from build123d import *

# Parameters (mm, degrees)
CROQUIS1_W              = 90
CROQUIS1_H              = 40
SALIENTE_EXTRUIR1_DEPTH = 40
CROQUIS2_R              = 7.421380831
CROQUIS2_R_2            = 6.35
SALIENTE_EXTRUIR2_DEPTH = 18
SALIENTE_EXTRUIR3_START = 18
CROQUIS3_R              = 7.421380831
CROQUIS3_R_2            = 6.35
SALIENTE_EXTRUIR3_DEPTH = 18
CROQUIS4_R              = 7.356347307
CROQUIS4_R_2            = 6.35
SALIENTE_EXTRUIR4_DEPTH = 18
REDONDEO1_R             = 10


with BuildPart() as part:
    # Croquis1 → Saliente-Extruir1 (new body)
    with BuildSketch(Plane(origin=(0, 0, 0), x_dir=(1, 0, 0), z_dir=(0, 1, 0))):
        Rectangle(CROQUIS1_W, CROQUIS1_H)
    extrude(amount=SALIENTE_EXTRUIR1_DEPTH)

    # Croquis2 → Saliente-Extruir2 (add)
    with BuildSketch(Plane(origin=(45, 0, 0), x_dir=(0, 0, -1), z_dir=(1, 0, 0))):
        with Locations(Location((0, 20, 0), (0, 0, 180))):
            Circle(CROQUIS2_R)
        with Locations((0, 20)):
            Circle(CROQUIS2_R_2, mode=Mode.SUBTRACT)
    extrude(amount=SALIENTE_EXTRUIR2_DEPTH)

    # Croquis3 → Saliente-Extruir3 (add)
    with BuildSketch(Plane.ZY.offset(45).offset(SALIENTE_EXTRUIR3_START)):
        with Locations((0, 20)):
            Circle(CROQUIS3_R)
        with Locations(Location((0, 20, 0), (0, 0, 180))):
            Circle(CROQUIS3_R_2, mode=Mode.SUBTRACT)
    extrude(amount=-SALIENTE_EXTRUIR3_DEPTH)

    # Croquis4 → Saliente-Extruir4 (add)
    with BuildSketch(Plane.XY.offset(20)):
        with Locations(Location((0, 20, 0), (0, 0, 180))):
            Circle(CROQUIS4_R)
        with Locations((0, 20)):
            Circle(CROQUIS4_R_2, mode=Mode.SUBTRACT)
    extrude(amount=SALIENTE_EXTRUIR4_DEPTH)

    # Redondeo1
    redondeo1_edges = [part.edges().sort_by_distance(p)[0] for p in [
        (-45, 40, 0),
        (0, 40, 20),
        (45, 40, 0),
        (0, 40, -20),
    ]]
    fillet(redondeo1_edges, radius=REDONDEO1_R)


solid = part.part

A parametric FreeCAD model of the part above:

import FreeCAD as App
import Part
import Sketcher
from FreeCAD import Vector


def edges_at(feature, points):
    """Names of the edges that pass closest to the given points."""
    edges = feature.Shape.Edges
    near = lambda p: min(range(len(edges)), key=lambda i: edges[i].distToShape(Part.Vertex(*p))[0])
    return sorted({f"Edge{near(p) + 1}" for p in points})


def add_polygon(sketch, points):
    """Adds a closed chain of lines whose ends are joined by coincident constraints."""
    first, n = sketch.GeometryCount, len(points)
    for a, b in zip(points, points[1:] + points[:1]):
        sketch.addGeometry(Part.LineSegment(App.Vector(*a, 0), App.Vector(*b, 0)), False)
    for i in range(n):
        sketch.addConstraint(Sketcher.Constraint("Coincident", first + i, 2, first + (i + 1) % n, 1))

doc = App.newDocument("Part")
body = doc.addObject("PartDesign::Body", "Body")

sketch1 = doc.addObject("Sketcher::SketchObject", "Sketch")
body.addObject(sketch1)
sketch1.AttachmentSupport = (doc.XZ_Plane, [""])
sketch1.MapMode = "FlatFace"
add_polygon(sketch1, [(-45, -20), (-45, 20), (45, 20), (45, -20)])
sketch1.addConstraint([
    Sketcher.Constraint("Vertical", 0),
    Sketcher.Constraint("Horizontal", 1),
    Sketcher.Constraint("Vertical", 2),
    Sketcher.Constraint("Horizontal", 3),
    Sketcher.Constraint("Symmetric", 0, 2, 2, 2, -1, 1),
    Sketcher.Constraint("DistanceX", 1, 1, 1, 2, 90.0),
    Sketcher.Constraint("DistanceY", 0, 1, 0, 2, 40.0),
])
pad1 = doc.addObject("PartDesign::Pad", "Pad")
body.addObject(pad1)
pad1.Profile = sketch1
pad1.Length = 40
pad1.Reversed = True

sketch2 = doc.addObject("Sketcher::SketchObject", "Sketch001")
body.addObject(sketch2)
sketch2.AttachmentSupport = (doc.YZ_Plane, [""])
sketch2.MapMode = "FlatFace"
sketch2.AttachmentOffset = App.Placement(Vector(0, 0, 45), App.Rotation())
sketch2.addGeometry([
    Part.Circle(Vector(20, 0, 0), Vector(0, 0, 1), 7.421381),
    Part.Circle(Vector(20, 0, 0), Vector(0, 0, 1), 6.35),
], False)
sketch2.addConstraint([
    Sketcher.Constraint("Coincident", 1, 3, 0, 3),
    Sketcher.Constraint("PointOnObject", 0, 3, -1),
    Sketcher.Constraint("Diameter", 1, 12.7),
    Sketcher.Constraint("DistanceX", -1, 1, 0, 3, 20.0),
    Sketcher.Constraint("Diameter", 0, 14.842762),
])
pad2 = doc.addObject("PartDesign::Pad", "Pad001")
body.addObject(pad2)
pad2.Profile = sketch2
pad2.Length = 18

sketch3 = doc.addObject("Sketcher::SketchObject", "Sketch002")
body.addObject(sketch3)
sketch3.AttachmentSupport = (doc.YZ_Plane, [""])
sketch3.MapMode = "FlatFace"
sketch3.AttachmentOffset = App.Placement(Vector(0, 0, -63), App.Rotation())
sketch3.addGeometry([
    Part.Circle(Vector(20, 0, 0), Vector(0, 0, 1), 7.421381),
    Part.Circle(Vector(20, 0, 0), Vector(0, 0, 1), 6.35),
], False)
sketch3.addConstraint([
    Sketcher.Constraint("Coincident", 1, 3, 0, 3),
    Sketcher.Constraint("PointOnObject", 0, 3, -1),
    Sketcher.Constraint("Diameter", 1, 12.7),
    Sketcher.Constraint("DistanceX", -1, 1, 0, 3, 20.0),
    Sketcher.Constraint("Diameter", 0, 14.842762),
])
pad3 = doc.addObject("PartDesign::Pad", "Pad002")
body.addObject(pad3)
pad3.Profile = sketch3
pad3.Length = 18

sketch4 = doc.addObject("Sketcher::SketchObject", "Sketch003")
body.addObject(sketch4)
sketch4.AttachmentSupport = (doc.XY_Plane, [""])
sketch4.MapMode = "FlatFace"
sketch4.AttachmentOffset = App.Placement(Vector(0, 0, 20), App.Rotation())
sketch4.addGeometry([
    Part.Circle(Vector(0, 20, 0), Vector(0, 0, 1), 7.356347),
    Part.Circle(Vector(0, 20, 0), Vector(0, 0, 1), 6.35),
], False)
sketch4.addConstraint([
    Sketcher.Constraint("Coincident", 1, 3, 0, 3),
    Sketcher.Constraint("PointOnObject", 0, 3, -2),
    Sketcher.Constraint("Diameter", 1, 12.7),
    Sketcher.Constraint("DistanceY", -1, 1, 0, 3, 20.0),
    Sketcher.Constraint("Diameter", 0, 14.712695),
])
pad4 = doc.addObject("PartDesign::Pad", "Pad003")
body.addObject(pad4)
pad4.Profile = sketch4
pad4.Length = 18
doc.recompute()

fillet = doc.addObject("PartDesign::Fillet", "Fillet")
body.addObject(fillet)
fillet.Base = (pad4, edges_at(pad4, [
    (-45, 40, 0),
    (0, 40, 20),
    (45, 40, 0),
    (0, 40, -20),
]))
fillet.Radius = 10

doc.recompute()
